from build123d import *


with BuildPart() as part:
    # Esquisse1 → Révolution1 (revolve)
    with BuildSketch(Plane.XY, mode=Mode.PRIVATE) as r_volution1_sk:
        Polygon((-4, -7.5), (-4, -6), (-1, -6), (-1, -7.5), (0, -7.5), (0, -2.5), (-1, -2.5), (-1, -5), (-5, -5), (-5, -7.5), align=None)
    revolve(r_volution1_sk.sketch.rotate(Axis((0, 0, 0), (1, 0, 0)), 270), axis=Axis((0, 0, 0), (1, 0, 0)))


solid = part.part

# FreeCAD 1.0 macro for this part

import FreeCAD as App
import Part
import Sketcher

V = App.Vector
Q = App.Units.Quantity


def add_polygon(sketch, points):
    """Adds a closed chain of lines whose ends are joined by coincident constraints."""
    first, n = sketch.GeometryCount, len(points)
    for a, b in zip(points, points[1:] + points[:1]):
        sketch.addGeometry(Part.LineSegment(App.Vector(*a, 0), App.Vector(*b, 0)), False)
    for i in range(n):
        sketch.addConstraint(Sketcher.Constraint("Coincident", first + i, 2, first + (i + 1) % n, 1))

doc = App.newDocument("Part")
body = doc.addObject("PartDesign::Body", "Body")

# Sketch on XY plane
sketch1 = body.newObject("Sketcher::SketchObject", "Sketch")
sketch1.AttachmentSupport = (doc.getObject("XY_Plane"), [""])
sketch1.MapMode = "FlatFace"
add_polygon(sketch1, [(-4, -7.5), (-4, -6), (-1, -6), (-1, -7.5), (0, -7.5), (0, -2.5), (-1, -2.5), (-1, -5), (-5, -5), (-5, -7.5)])  # lines 0-9
sketch1.addConstraint([
    Sketcher.Constraint("Vertical", 0),
    Sketcher.Constraint("Horizontal", 1),
    Sketcher.Constraint("Vertical", 2),
    Sketcher.Constraint("Horizontal", 3),
    Sketcher.Constraint("Vertical", 4),
    Sketcher.Constraint("Horizontal", 5),
    Sketcher.Constraint("Vertical", 6),
    Sketcher.Constraint("Horizontal", 7),
    Sketcher.Constraint("Vertical", 8),
    Sketcher.Constraint("Horizontal", 9),
    Sketcher.Constraint("PointOnObject", 3, 2, -2),
    Sketcher.Constraint("Horizontal", 3, 2, 8, 2),
    Sketcher.Constraint("Vertical", 2, 2, 5, 2),
    Sketcher.Constraint("Equal", 5, 9),
    Sketcher.Constraint("Equal", 6, 8),
    Sketcher.Constraint("DistanceX", 1, 1, 1, 2, Q("3 mm")),
    Sketcher.Constraint("DistanceX", 3, 1, 3, 2, Q("1 mm")),
    Sketcher.Constraint("DistanceY", 4, 1, 4, 2, Q("5 mm")),
    Sketcher.Constraint("DistanceY", 0, 1, 0, 2, Q("1.5 mm")),
    Sketcher.Constraint("DistanceY", 0, 2, -1, 1, Q("6 mm")),
])
revolution = body.newObject("PartDesign::Revolution", "Revolution")
revolution.Profile = sketch1
revolution.ReferenceAxis = (sketch1, ["H_Axis"])
revolution.Angle = 360

doc.recompute()
